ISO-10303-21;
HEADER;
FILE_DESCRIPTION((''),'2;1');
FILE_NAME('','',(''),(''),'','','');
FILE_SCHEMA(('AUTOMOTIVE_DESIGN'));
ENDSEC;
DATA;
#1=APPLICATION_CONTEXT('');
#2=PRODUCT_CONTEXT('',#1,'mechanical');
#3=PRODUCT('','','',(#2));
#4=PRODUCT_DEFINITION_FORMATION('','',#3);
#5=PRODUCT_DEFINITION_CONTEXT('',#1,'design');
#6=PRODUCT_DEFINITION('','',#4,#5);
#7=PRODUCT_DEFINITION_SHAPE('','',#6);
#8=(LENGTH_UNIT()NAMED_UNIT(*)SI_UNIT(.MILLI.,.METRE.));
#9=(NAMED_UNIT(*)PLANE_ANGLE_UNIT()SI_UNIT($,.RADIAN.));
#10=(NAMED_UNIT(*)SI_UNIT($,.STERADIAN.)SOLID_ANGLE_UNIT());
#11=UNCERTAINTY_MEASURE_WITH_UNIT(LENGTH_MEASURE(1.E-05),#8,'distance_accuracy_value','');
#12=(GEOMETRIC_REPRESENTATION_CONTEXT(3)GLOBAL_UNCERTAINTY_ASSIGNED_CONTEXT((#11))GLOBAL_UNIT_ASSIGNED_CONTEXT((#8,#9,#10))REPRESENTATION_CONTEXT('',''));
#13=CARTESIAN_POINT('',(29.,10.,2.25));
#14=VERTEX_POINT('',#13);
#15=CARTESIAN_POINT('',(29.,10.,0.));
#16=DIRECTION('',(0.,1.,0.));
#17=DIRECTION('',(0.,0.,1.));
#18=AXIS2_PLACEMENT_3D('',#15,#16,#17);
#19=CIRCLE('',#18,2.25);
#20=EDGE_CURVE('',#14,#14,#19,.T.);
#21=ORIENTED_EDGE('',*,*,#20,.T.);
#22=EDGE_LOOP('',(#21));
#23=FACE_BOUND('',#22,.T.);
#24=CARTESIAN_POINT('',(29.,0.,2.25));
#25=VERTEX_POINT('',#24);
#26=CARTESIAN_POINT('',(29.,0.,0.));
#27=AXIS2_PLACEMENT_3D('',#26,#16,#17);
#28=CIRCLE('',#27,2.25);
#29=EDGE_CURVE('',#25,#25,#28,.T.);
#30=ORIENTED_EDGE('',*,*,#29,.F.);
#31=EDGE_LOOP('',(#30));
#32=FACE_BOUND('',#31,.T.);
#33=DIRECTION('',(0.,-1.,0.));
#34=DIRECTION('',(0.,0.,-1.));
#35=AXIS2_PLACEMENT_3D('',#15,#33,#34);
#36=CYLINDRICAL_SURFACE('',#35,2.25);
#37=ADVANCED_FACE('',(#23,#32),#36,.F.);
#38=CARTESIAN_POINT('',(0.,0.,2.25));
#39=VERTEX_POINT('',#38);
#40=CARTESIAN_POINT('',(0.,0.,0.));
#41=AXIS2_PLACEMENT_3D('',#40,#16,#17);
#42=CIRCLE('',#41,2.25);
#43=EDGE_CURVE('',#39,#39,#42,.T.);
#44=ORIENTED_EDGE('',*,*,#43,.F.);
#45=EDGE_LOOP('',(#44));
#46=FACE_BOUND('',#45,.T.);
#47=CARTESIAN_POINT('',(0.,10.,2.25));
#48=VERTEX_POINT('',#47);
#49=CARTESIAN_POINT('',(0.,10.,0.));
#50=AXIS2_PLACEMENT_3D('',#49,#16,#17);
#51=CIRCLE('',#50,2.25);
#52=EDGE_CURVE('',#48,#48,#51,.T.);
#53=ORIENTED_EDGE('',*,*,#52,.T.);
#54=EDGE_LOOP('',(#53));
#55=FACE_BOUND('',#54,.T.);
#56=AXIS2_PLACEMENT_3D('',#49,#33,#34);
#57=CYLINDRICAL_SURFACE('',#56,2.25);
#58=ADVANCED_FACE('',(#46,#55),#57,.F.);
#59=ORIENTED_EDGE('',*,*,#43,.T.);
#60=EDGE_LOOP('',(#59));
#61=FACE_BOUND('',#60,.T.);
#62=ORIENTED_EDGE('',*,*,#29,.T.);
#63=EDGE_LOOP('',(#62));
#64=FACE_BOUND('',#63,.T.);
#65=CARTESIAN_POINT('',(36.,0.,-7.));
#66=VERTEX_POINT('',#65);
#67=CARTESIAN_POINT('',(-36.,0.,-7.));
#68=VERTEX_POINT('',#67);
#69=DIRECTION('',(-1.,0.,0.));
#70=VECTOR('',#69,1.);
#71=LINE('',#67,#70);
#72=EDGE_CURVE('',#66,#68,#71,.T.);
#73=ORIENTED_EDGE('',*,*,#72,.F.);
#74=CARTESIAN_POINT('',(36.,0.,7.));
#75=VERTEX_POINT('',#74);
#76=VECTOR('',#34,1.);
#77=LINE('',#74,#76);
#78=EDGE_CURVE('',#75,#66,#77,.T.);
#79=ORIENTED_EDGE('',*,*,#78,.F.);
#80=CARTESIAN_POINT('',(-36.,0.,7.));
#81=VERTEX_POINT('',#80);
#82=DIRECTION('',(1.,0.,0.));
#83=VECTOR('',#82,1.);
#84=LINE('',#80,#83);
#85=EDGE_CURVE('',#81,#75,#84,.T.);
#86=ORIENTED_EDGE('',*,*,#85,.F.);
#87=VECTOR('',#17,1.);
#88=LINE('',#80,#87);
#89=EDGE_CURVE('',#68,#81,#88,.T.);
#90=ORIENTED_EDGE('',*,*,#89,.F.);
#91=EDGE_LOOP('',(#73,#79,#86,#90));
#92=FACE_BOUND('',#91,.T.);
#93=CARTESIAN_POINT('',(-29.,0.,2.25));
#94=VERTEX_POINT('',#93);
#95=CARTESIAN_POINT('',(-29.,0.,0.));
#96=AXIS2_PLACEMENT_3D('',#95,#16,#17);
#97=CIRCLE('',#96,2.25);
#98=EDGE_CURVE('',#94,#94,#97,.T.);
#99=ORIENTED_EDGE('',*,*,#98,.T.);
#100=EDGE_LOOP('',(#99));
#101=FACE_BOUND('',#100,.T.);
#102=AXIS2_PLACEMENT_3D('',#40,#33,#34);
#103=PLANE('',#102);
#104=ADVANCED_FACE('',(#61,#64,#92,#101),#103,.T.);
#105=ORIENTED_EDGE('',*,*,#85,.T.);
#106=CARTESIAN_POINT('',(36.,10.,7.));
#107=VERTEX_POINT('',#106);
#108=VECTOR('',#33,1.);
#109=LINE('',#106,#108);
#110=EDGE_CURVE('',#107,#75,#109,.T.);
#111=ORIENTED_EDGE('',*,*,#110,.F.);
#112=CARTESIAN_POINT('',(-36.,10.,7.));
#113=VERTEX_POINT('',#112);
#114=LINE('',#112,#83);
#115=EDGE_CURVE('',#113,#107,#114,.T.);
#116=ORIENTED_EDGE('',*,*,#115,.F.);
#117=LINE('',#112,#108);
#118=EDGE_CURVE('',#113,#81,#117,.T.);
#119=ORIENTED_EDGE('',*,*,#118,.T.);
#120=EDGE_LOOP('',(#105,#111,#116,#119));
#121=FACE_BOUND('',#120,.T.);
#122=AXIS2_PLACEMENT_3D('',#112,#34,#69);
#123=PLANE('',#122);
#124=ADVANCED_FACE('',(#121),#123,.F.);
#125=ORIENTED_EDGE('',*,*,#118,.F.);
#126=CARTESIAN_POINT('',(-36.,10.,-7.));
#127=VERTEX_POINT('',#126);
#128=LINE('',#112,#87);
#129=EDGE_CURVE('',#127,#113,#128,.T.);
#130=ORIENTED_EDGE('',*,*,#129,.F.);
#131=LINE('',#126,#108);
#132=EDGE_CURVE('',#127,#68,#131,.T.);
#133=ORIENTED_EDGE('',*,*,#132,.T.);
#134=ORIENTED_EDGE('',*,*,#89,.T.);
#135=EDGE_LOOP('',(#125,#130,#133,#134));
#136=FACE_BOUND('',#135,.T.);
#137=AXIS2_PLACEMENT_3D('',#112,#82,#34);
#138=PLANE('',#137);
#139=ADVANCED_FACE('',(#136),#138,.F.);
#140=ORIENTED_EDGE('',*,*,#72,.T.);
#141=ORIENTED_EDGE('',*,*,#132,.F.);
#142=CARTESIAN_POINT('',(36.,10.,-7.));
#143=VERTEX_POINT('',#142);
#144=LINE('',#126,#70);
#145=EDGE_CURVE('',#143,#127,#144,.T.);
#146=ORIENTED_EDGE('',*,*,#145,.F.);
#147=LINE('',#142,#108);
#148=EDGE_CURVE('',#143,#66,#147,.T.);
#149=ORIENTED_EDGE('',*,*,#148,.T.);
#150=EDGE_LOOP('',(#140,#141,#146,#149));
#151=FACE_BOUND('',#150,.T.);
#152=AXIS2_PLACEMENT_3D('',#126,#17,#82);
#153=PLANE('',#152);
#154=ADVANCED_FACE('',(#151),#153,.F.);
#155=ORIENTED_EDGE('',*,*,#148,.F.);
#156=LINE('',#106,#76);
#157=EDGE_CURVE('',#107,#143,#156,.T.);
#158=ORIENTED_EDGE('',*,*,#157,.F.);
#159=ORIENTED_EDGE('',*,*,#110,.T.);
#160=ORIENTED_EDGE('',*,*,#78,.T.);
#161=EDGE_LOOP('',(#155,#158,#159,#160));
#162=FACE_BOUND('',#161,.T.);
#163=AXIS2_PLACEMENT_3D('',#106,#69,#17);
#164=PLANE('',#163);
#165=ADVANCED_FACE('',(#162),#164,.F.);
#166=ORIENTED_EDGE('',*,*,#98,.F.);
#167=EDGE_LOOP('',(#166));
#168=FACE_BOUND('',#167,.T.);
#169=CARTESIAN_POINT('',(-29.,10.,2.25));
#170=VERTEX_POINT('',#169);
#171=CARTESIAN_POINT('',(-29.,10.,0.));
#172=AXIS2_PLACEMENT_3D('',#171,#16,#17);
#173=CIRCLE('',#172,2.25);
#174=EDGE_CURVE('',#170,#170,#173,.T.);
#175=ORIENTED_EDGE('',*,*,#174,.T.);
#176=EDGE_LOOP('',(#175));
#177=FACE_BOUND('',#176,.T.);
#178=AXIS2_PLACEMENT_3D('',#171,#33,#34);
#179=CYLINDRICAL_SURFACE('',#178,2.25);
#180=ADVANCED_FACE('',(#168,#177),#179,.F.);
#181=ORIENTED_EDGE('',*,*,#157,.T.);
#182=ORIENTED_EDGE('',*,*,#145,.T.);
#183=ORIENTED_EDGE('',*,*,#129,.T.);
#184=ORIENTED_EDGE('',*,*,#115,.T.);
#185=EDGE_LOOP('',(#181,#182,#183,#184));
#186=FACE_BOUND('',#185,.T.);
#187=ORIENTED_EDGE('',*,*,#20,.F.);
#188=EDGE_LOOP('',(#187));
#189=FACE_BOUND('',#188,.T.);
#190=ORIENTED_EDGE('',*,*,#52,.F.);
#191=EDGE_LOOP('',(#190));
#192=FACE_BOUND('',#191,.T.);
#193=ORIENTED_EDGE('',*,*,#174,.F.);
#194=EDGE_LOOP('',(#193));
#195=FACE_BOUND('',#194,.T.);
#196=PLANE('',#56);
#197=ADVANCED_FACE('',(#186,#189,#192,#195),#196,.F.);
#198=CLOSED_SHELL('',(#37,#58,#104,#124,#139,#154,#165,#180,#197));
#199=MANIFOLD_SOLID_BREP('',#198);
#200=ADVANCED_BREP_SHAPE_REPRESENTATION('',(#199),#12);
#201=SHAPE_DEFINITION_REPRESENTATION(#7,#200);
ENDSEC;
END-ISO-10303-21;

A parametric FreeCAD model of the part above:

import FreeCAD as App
import Part
import Sketcher

V = App.Vector


def add_polygon(sketch, points):
    """Adds a closed chain of lines whose ends are joined by coincident constraints."""
    first, n = sketch.GeometryCount, len(points)
    for a, b in zip(points, points[1:] + points[:1]):
        sketch.addGeometry(Part.LineSegment(App.Vector(*a, 0), App.Vector(*b, 0)), False)
    for i in range(n):
        sketch.addConstraint(Sketcher.Constraint("Coincident", first + i, 2, first + (i + 1) % n, 1))

doc = App.newDocument("Part")
body = doc.addObject("PartDesign::Body", "Body")

# Sketch on XZ plane
sketch1 = body.newObject("Sketcher::SketchObject", "Sketch")
sketch1.AttachmentSupport = (doc.getObject("XZ_Plane"), [""])
sketch1.MapMode = "FlatFace"
add_polygon(sketch1, [(-36, -7), (-36, 7), (36, 7), (36, -7)])  # lines 0-3
sketch1.addGeometry(Part.Circle(V(-29, 0, 0), V(0, 0, 1), 2.25), False)  # 4
sketch1.addGeometry(Part.Circle(V(0, 0, 0), V(0, 0, 1), 2.25), False)  # 5
sketch1.addGeometry(Part.Circle(V(29, 0, 0), V(0, 0, 1), 2.25), False)  # 6
sketch1.addConstraint([
    Sketcher.Constraint("Vertical", 0),
    Sketcher.Constraint("Horizontal", 1),
    Sketcher.Constraint("Vertical", 2),
    Sketcher.Constraint("Horizontal", 3),
    Sketcher.Constraint("Coincident", 5, 3, -1, 1),
    Sketcher.Constraint("Equal", 4, 5),
    Sketcher.Constraint("Equal", 5, 6),
    Sketcher.Constraint("Symmetric", 4, 3, 6, 3, -1, 1),
    Sketcher.Constraint("Symmetric", 0, 2, 2, 2, -1, 1),
    Sketcher.Constraint("PointOnObject", 4, 3, -1),
    Sketcher.Constraint("Diameter", 4, 4.5),
    Sketcher.Constraint("DistanceX", 1, 1, 1, 2, 72.0),
    Sketcher.Constraint("DistanceY", 0, 1, 0, 2, 14.0),
    Sketcher.Constraint("DistanceX", 4, 3, -1, 1, 29.0),
])
pad1 = body.newObject("PartDesign::Pad", "Pad")
pad1.Profile = sketch1
pad1.Length = 10
pad1.Reversed = True

doc.recompute()
